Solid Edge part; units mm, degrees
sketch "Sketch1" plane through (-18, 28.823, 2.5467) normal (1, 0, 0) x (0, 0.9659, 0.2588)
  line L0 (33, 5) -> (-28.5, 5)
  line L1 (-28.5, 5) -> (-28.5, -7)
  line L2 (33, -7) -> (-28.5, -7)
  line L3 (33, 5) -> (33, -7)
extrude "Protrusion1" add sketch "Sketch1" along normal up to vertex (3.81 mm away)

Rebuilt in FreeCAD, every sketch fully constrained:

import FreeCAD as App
import Part
import Sketcher
Q = App.Units.Quantity


def add_polygon(sketch, points):
    """Adds a closed chain of lines whose ends are joined by coincident constraints."""
    first, n = sketch.GeometryCount, len(points)
    for a, b in zip(points, points[1:] + points[:1]):
        sketch.addGeometry(Part.LineSegment(App.Vector(*a, 0), App.Vector(*b, 0)), False)
    for i in range(n):
        sketch.addConstraint(Sketcher.Constraint("Coincident", first + i, 2, first + (i + 1) % n, 1))

doc = App.newDocument("Part")
body = doc.addObject("PartDesign::Body", "Body")

# Sketch on YZ plane
sketch1 = body.newObject("Sketcher::SketchObject", "Sketch")
sketch1.AttachmentSupport = (doc.getObject("YZ_Plane"), [""])
sketch1.MapMode = "FlatFace"
sketch1.AttachmentOffset = App.Placement(App.Vector(0, 0, -18), App.Rotation())
add_polygon(sketch1, [(63, 4), (59, 16), (0, 0), (3, -12)])  # lines 0-3
sketch1.addConstraint(Sketcher.Constraint("Coincident", 1, 2, -1, 1))
sketch1.addConstraint(Sketcher.Constraint("Perpendicular", 0, 1))
sketch1.addConstraint(Sketcher.Constraint("Perpendicular", 1, 2))
sketch1.addConstraint(Sketcher.Constraint("Perpendicular", 2, 3))
sketch1.addConstraint(Sketcher.Constraint("Angle", 0, Q("105 deg")))
sketch1.addConstraint(Sketcher.Constraint("Distance", 0, 12.0))
sketch1.addConstraint(Sketcher.Constraint("Distance", 1, 61.5))
pad1 = body.newObject("PartDesign::Pad", "Pad")
pad1.Profile = sketch1
pad1.Length = 3.81

doc.recompute()
